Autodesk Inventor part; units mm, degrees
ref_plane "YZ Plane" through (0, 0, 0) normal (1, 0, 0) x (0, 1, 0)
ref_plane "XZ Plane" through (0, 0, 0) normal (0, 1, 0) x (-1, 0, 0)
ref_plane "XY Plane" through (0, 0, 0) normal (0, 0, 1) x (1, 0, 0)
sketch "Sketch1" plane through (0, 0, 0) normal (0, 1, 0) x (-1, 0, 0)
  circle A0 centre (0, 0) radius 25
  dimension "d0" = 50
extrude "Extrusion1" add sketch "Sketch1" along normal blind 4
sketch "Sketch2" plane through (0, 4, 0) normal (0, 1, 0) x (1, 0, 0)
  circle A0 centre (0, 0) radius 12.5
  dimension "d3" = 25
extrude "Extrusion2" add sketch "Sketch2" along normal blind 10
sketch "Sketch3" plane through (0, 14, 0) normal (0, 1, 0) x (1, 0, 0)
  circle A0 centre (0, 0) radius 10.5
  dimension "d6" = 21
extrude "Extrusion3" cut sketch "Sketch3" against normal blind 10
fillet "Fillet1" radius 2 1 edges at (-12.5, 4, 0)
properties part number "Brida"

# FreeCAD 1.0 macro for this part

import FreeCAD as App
import Part
import Sketcher

V = App.Vector


def edges_at(feature, points):
    """Names of the edges that pass closest to the given points."""
    edges = feature.Shape.Edges
    near = lambda p: min(range(len(edges)), key=lambda i: edges[i].distToShape(Part.Vertex(*p))[0])
    return sorted({f"Edge{near(p) + 1}" for p in points})

doc = App.newDocument("Part")
params = doc.addObject("Spreadsheet::Sheet", "Params")
for row, (alias, value) in enumerate([
    ("sketch1_diameter", "50 mm"),
    ("pad1_length", "4 mm"),
    ("sketch2_diameter", "25 mm"),
    ("pad2_length", "10 mm"),
    ("sketch3_diameter", "21 mm"),
    ("pocket1_length", "10 mm"),
    ("fillet_radius", "2 mm"),
], start=1):
    params.set(f"A{row}", alias)
    params.set(f"B{row}", "=" + value)
    params.setAlias(f"B{row}", alias)

body = doc.addObject("PartDesign::Body", "Body")

# Sketch on XZ plane
sketch1 = body.newObject("Sketcher::SketchObject", "Sketch")
sketch1.AttachmentSupport = (doc.getObject("XZ_Plane"), [""])
sketch1.MapMode = "FlatFace"
sketch1.addGeometry(Part.Circle(V(0, 0, 0), V(0, 0, 1), 25), False)
sketch1.addConstraint(Sketcher.Constraint("Coincident", 0, 3, -1, 1))
sketch1.addConstraint(Sketcher.Constraint("Diameter", 0, 50.0))
sketch1.setExpression("Constraints[1]", "Params.sketch1_diameter")
pad1 = body.newObject("PartDesign::Pad", "Pad")
pad1.Profile = sketch1
pad1.setExpression("Length", "Params.pad1_length")
pad1.Reversed = True

# Sketch on XZ plane
sketch2 = body.newObject("Sketcher::SketchObject", "Sketch001")
sketch2.AttachmentSupport = (doc.getObject("XZ_Plane"), [""])
sketch2.MapMode = "FlatFace"
sketch2.AttachmentOffset = App.Placement(V(0, 0, -4), App.Rotation())
sketch2.addGeometry(Part.Circle(V(0, 0, 0), V(0, 0, 1), 12), False)
sketch2.addConstraint(Sketcher.Constraint("Coincident", 0, 3, -1, 1))
sketch2.addConstraint(Sketcher.Constraint("Diameter", 0, 25.0))
sketch2.setExpression("Constraints[1]", "Params.sketch2_diameter")
pad2 = body.newObject("PartDesign::Pad", "Pad001")
pad2.Profile = sketch2
pad2.setExpression("Length", "Params.pad2_length")
pad2.Reversed = True

# Sketch on XZ plane
sketch3 = body.newObject("Sketcher::SketchObject", "Sketch002")
sketch3.AttachmentSupport = (doc.getObject("XZ_Plane"), [""])
sketch3.MapMode = "FlatFace"
sketch3.AttachmentOffset = App.Placement(V(0, 0, -14), App.Rotation())
sketch3.addGeometry(Part.Circle(V(0, 0, 0), V(0, 0, 1), 10), False)
sketch3.addConstraint(Sketcher.Constraint("Coincident", 0, 3, -1, 1))
sketch3.addConstraint(Sketcher.Constraint("Diameter", 0, 21.0))
sketch3.setExpression("Constraints[1]", "Params.sketch3_diameter")
pocket1 = body.newObject("PartDesign::Pocket", "Pocket")
pocket1.Profile = sketch3
pocket1.setExpression("Length", "Params.pocket1_length")
pocket1.Reversed = True
doc.recompute()

fillet = body.newObject("PartDesign::Fillet", "Fillet")
fillet.Base = (pocket1, edges_at(pocket1, [(-12.5, 4, 0)]))
fillet.setExpression("Radius", "Params.fillet_radius")

doc.recompute()
